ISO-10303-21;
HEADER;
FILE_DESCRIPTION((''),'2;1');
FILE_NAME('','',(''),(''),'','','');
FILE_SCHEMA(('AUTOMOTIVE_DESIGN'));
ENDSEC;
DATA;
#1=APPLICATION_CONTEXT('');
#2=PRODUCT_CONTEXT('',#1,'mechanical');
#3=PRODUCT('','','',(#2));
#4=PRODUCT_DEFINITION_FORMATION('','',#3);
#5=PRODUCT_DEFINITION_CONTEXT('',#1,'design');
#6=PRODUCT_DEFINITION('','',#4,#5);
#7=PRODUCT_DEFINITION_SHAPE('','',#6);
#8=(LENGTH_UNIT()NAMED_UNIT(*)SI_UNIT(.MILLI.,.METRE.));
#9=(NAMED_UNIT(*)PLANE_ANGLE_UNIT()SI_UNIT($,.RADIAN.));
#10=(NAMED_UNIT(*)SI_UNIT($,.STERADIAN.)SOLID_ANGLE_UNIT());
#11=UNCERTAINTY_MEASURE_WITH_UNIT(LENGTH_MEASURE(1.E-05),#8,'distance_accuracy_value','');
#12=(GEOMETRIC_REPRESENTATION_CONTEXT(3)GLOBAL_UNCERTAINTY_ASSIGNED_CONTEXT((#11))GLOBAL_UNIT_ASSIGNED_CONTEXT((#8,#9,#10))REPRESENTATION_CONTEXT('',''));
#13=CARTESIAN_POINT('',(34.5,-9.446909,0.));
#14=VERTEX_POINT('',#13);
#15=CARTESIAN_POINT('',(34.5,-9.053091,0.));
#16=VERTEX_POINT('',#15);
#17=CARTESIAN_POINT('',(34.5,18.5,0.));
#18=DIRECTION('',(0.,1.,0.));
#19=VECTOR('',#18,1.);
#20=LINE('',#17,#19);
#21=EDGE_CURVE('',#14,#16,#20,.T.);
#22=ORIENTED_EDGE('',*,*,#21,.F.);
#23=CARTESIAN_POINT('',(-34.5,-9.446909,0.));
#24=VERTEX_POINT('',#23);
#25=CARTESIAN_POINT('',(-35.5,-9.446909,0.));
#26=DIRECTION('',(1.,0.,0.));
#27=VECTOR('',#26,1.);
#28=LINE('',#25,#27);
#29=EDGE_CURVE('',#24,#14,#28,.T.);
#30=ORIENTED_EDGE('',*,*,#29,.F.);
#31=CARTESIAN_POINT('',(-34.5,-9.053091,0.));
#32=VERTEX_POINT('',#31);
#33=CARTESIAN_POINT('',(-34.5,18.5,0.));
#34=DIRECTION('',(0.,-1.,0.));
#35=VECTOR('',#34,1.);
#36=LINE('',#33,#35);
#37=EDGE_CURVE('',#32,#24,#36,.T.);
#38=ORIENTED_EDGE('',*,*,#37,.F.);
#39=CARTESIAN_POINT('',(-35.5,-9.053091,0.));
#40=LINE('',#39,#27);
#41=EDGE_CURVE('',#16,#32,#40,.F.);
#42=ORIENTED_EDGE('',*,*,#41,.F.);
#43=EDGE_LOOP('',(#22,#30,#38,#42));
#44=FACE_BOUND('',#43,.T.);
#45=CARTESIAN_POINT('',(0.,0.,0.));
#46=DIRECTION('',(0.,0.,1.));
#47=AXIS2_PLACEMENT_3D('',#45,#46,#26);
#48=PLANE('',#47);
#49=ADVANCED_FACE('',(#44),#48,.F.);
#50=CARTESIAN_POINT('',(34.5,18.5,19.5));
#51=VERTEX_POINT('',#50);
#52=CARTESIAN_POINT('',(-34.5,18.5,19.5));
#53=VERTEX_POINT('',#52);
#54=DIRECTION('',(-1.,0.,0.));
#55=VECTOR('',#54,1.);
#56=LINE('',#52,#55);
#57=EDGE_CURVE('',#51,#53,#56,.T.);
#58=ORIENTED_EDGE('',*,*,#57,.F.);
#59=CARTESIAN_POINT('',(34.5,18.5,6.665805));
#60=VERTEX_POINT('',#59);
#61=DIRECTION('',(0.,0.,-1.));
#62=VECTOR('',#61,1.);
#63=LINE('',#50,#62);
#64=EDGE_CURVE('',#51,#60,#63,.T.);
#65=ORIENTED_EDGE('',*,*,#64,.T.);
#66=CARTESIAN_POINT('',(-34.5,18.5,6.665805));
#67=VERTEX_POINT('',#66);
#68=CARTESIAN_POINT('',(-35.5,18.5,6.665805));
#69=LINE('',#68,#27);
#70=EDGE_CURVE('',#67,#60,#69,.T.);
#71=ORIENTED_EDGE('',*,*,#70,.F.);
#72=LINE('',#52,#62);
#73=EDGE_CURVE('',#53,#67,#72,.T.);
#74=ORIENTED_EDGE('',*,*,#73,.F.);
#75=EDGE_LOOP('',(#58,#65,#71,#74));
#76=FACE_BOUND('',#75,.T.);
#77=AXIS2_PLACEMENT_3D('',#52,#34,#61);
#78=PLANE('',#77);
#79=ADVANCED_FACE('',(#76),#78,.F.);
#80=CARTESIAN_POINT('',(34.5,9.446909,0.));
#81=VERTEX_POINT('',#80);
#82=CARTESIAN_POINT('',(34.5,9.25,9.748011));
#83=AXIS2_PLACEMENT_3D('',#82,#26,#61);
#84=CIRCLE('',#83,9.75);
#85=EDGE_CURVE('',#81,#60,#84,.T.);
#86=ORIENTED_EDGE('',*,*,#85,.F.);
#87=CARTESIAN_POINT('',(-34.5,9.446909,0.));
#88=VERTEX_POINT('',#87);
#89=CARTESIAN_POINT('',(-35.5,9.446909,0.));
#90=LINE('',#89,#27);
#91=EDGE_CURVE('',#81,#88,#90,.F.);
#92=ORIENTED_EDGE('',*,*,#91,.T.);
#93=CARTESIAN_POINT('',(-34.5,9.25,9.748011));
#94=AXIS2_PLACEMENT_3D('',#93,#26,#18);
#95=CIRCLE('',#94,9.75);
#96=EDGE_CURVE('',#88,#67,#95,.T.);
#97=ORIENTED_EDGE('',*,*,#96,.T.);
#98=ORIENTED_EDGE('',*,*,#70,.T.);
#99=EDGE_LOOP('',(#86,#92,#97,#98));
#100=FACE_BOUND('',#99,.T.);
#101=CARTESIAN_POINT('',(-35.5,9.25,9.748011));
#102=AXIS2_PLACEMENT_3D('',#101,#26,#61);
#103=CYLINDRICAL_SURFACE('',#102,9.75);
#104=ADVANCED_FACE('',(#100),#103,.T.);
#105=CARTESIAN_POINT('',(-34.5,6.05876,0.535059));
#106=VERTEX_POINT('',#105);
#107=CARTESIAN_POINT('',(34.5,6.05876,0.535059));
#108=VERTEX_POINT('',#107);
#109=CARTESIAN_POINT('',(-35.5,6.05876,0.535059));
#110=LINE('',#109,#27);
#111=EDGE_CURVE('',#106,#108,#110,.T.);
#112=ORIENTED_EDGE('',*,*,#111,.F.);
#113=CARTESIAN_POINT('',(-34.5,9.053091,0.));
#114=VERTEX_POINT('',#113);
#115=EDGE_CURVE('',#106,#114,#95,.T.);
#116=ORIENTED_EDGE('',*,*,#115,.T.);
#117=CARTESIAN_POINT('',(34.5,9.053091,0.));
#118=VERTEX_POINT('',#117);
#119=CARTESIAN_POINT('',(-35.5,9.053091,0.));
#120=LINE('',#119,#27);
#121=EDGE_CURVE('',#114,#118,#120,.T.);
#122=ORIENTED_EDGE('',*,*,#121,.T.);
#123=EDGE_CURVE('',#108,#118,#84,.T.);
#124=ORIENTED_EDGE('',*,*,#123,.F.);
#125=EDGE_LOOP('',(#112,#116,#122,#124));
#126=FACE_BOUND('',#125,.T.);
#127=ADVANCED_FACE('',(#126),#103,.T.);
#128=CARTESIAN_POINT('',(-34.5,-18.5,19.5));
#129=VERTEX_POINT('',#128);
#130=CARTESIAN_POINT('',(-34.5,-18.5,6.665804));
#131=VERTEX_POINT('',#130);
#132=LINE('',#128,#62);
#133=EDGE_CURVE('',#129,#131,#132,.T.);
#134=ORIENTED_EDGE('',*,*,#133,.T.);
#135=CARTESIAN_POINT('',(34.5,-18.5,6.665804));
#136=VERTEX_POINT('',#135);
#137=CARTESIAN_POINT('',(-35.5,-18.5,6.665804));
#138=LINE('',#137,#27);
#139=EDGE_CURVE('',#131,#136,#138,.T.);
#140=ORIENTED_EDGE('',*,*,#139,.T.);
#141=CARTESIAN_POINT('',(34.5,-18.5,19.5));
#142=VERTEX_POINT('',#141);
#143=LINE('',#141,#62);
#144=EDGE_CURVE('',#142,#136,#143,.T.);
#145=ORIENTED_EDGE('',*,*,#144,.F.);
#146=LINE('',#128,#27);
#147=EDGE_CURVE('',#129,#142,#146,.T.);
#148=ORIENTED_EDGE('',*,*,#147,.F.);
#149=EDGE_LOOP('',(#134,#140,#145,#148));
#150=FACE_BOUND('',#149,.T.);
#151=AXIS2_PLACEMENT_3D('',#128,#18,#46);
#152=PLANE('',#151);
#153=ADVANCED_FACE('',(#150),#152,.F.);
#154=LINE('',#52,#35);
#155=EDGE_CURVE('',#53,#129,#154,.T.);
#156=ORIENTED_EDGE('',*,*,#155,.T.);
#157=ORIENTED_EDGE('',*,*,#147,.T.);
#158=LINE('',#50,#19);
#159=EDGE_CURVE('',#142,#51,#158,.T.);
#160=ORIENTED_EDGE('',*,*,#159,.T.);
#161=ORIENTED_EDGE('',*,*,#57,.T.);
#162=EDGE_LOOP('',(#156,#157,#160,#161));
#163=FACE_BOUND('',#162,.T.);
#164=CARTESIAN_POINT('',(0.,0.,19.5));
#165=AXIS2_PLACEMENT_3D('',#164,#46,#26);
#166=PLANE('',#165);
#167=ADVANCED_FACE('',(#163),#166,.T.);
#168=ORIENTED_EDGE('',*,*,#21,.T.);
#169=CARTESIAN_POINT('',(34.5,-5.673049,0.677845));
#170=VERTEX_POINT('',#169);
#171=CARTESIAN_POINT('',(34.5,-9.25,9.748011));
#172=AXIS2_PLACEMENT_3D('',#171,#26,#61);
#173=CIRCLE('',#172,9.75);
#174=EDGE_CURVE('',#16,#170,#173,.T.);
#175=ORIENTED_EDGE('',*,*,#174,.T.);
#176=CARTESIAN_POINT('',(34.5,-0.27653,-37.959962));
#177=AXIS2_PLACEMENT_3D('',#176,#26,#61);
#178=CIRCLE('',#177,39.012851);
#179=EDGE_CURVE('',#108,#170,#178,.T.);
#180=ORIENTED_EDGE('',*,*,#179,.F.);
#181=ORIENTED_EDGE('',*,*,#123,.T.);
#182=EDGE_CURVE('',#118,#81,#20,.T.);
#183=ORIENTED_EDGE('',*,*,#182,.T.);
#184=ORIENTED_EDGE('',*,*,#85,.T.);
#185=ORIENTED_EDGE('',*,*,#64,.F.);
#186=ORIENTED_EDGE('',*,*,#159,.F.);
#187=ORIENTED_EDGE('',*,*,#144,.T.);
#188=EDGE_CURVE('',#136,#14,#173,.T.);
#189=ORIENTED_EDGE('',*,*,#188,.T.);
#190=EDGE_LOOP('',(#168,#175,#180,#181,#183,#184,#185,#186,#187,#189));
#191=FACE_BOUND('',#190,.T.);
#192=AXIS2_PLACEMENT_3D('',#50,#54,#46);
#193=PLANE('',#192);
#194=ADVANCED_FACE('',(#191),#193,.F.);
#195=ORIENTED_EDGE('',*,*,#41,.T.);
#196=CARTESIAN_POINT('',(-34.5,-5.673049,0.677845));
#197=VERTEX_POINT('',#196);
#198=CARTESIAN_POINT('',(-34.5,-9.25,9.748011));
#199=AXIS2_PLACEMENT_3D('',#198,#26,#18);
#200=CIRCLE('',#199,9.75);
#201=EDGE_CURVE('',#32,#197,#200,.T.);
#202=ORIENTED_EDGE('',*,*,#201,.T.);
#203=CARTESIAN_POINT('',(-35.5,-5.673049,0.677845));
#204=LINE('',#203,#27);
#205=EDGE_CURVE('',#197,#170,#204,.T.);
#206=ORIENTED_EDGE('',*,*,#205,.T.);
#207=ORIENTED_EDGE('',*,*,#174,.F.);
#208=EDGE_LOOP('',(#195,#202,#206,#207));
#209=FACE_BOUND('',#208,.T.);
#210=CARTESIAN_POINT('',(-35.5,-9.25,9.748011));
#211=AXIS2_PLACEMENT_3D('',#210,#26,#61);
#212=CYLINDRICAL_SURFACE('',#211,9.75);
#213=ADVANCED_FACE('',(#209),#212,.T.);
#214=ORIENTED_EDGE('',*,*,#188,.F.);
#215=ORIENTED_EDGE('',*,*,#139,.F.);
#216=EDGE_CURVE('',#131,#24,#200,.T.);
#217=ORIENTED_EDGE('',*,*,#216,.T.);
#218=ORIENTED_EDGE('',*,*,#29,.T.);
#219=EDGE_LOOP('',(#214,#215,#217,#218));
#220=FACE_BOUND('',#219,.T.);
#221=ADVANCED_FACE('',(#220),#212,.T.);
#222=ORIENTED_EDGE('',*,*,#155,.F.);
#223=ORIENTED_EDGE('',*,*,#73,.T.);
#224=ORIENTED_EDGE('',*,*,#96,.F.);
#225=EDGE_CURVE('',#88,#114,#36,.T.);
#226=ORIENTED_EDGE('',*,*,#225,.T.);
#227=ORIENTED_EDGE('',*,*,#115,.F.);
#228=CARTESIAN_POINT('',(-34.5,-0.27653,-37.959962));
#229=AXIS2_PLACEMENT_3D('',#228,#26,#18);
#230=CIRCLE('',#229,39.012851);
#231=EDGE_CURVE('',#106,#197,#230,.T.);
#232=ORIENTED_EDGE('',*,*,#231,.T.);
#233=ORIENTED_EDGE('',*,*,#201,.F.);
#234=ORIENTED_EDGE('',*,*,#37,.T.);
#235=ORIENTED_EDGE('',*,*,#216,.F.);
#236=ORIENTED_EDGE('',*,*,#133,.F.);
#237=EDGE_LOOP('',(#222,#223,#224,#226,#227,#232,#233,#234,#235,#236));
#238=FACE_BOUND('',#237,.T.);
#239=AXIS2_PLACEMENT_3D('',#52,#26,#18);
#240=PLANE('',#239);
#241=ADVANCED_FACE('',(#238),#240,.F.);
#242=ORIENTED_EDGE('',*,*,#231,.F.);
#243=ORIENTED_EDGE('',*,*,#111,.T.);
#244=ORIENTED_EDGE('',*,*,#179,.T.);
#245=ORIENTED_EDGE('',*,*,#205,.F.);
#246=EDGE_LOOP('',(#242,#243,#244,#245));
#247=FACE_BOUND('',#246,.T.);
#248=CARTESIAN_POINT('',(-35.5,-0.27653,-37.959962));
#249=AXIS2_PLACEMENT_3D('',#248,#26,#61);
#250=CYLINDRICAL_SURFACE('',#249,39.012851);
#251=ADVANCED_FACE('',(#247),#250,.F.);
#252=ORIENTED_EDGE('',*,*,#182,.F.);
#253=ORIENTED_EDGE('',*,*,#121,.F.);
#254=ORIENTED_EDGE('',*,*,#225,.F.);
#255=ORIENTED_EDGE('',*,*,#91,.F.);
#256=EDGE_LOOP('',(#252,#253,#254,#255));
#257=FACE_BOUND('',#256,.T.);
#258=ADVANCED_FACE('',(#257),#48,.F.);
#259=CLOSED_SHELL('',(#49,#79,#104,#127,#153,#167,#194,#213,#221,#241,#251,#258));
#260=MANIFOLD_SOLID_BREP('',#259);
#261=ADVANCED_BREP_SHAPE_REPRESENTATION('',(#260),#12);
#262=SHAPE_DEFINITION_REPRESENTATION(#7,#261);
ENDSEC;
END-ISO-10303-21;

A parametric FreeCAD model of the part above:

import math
import FreeCAD as App
import Part
import Sketcher
from FreeCAD import Vector
Q = App.Units.Quantity


def add_polygon(sketch, points):
    """Adds a closed chain of lines whose ends are joined by coincident constraints."""
    first, n = sketch.GeometryCount, len(points)
    for a, b in zip(points, points[1:] + points[:1]):
        sketch.addGeometry(Part.LineSegment(App.Vector(*a, 0), App.Vector(*b, 0)), False)
    for i in range(n):
        sketch.addConstraint(Sketcher.Constraint("Coincident", first + i, 2, first + (i + 1) % n, 1))

doc = App.newDocument("Part")
body = doc.addObject("PartDesign::Body", "Body")

# Sketch on XY plane
sketch1 = body.newObject("Sketcher::SketchObject", "Sketch")
sketch1.AttachmentSupport = (doc.getObject("XY_Plane"), [""])
sketch1.MapMode = "FlatFace"
add_polygon(sketch1, [(-34.5, 18.5), (-34.5, -18.5), (34.5, -18.5), (34.5, 18.5)])  # lines 0-3
sketch1.addConstraint([
    Sketcher.Constraint("Vertical", 0),
    Sketcher.Constraint("Horizontal", 1),
    Sketcher.Constraint("Vertical", 2),
    Sketcher.Constraint("Horizontal", 3),
    Sketcher.Constraint("Symmetric", 0, 2, 2, 2, -1, 1),
    Sketcher.Constraint("DistanceX", 1, 1, 1, 2, Q("69 mm")),
    Sketcher.Constraint("DistanceY", 0, 2, 0, 1, Q("37 mm")),
])
pad1 = body.newObject("PartDesign::Pad", "Pad")
pad1.Profile = sketch1
pad1.Length = 19.5

# Sketch on YZ plane
sketch2 = body.newObject("Sketcher::SketchObject", "Sketch001")
sketch2.AttachmentSupport = (doc.getObject("YZ_Plane"), [""])
sketch2.MapMode = "FlatFace"
sketch2.AttachmentOffset = App.Placement(Vector(0, 0, 34.5), App.Rotation())
sketch2.addGeometry([
    Part.LineSegment(Vector(18.5, 0, 0), Vector(18.5, 6.665805, 0)),  # 0
    Part.ArcOfCircle(Part.Circle(Vector(9.25, 9.748011, 0), Vector(0, 0, 1), 9.75), math.radians(-88.842787), math.radians(-18.428666)),  # 1
    Part.LineSegment(Vector(9.446909, 0, 0), Vector(18.5, 0, 0)),  # 2
    Part.LineSegment(Vector(-9.053091, 0, 0), Vector(9.053091, 0, 0)),  # 3
    Part.ArcOfCircle(Part.Circle(Vector(9.25, 9.748011, 0), Vector(0, 0, 1), 9.75), math.radians(-109.105382), math.radians(-91.157213)),  # 4
    Part.ArcOfCircle(Part.Circle(Vector(-0.27653, -37.959962, 0), Vector(0, 0, 1), 39.012851), math.radians(80.654363), math.radians(97.951031)),  # 5
    Part.ArcOfCircle(Part.Circle(Vector(-9.25, 9.748011, 0), Vector(0, 0, 1), 9.75), math.radians(-88.842787), math.radians(-68.477484)),  # 6
    Part.ArcOfCircle(Part.Circle(Vector(-9.25, 9.748011, 0), Vector(0, 0, 1), 9.75), math.radians(-161.571326), math.radians(-91.157213)),  # 7
    Part.LineSegment(Vector(-18.5, 6.665804, 0), Vector(-18.5, 0, 0)),  # 8
    Part.LineSegment(Vector(-18.5, 0, 0), Vector(-9.446909, 0, 0)),  # 9
], False)
sketch2.addConstraint([
    Sketcher.Constraint("Coincident", 0, 2, 1, 2),
    Sketcher.Constraint("Coincident", 1, 1, 2, 1),
    Sketcher.Constraint("Coincident", 2, 2, 0, 1),
    Sketcher.Constraint("Coincident", 3, 2, 4, 2),
    Sketcher.Constraint("Coincident", 4, 1, 5, 1),
    Sketcher.Constraint("Coincident", 5, 2, 6, 2),
    Sketcher.Constraint("Coincident", 6, 1, 3, 1),
    Sketcher.Constraint("Coincident", 7, 1, 8, 1),
    Sketcher.Constraint("Coincident", 8, 2, 9, 1),
    Sketcher.Constraint("Coincident", 9, 2, 7, 2),
    Sketcher.Constraint("Vertical", 0),
    Sketcher.Constraint("Horizontal", 2),
    Sketcher.Constraint("Horizontal", 3),
    Sketcher.Constraint("Vertical", 8),
    Sketcher.Constraint("Horizontal", 9),
    Sketcher.Constraint("Coincident", 4, 3, 1, 3),
    Sketcher.Constraint("Coincident", 7, 3, 6, 3),
    Sketcher.Constraint("Equal", 1, 4),
    Sketcher.Constraint("Equal", 4, 6),
    Sketcher.Constraint("Equal", 6, 7),
    Sketcher.Constraint("Symmetric", 3, 2, 6, 1, -1, 1),
    Sketcher.Constraint("Symmetric", 2, 2, 8, 2, -1, 1),
    Sketcher.Constraint("Symmetric", 1, 1, 9, 2, -2),
    Sketcher.Constraint("Radius", 1, Q("9.75 mm")),
    Sketcher.Constraint("DistanceX", -1, 1, 0, 2, Q("18.5 mm")),
    Sketcher.Constraint("DistanceX", 6, 3, 4, 3, Q("18.5 mm")),
    Sketcher.Constraint("Radius", 5, Q("39.012851 mm")),
    Sketcher.Constraint("DistanceX", 2, 1, 2, 2, Q("9.053091 mm")),
    Sketcher.Constraint("DistanceX", 5, 3, -1, 1, Q("0.27653 mm")),
    Sketcher.Constraint("DistanceY", 5, 3, -1, 1, Q("37.959962 mm")),
])
pocket1 = body.newObject("PartDesign::Pocket", "Pocket")
pocket1.Profile = sketch2
pocket1.Length = 70

doc.recompute()
